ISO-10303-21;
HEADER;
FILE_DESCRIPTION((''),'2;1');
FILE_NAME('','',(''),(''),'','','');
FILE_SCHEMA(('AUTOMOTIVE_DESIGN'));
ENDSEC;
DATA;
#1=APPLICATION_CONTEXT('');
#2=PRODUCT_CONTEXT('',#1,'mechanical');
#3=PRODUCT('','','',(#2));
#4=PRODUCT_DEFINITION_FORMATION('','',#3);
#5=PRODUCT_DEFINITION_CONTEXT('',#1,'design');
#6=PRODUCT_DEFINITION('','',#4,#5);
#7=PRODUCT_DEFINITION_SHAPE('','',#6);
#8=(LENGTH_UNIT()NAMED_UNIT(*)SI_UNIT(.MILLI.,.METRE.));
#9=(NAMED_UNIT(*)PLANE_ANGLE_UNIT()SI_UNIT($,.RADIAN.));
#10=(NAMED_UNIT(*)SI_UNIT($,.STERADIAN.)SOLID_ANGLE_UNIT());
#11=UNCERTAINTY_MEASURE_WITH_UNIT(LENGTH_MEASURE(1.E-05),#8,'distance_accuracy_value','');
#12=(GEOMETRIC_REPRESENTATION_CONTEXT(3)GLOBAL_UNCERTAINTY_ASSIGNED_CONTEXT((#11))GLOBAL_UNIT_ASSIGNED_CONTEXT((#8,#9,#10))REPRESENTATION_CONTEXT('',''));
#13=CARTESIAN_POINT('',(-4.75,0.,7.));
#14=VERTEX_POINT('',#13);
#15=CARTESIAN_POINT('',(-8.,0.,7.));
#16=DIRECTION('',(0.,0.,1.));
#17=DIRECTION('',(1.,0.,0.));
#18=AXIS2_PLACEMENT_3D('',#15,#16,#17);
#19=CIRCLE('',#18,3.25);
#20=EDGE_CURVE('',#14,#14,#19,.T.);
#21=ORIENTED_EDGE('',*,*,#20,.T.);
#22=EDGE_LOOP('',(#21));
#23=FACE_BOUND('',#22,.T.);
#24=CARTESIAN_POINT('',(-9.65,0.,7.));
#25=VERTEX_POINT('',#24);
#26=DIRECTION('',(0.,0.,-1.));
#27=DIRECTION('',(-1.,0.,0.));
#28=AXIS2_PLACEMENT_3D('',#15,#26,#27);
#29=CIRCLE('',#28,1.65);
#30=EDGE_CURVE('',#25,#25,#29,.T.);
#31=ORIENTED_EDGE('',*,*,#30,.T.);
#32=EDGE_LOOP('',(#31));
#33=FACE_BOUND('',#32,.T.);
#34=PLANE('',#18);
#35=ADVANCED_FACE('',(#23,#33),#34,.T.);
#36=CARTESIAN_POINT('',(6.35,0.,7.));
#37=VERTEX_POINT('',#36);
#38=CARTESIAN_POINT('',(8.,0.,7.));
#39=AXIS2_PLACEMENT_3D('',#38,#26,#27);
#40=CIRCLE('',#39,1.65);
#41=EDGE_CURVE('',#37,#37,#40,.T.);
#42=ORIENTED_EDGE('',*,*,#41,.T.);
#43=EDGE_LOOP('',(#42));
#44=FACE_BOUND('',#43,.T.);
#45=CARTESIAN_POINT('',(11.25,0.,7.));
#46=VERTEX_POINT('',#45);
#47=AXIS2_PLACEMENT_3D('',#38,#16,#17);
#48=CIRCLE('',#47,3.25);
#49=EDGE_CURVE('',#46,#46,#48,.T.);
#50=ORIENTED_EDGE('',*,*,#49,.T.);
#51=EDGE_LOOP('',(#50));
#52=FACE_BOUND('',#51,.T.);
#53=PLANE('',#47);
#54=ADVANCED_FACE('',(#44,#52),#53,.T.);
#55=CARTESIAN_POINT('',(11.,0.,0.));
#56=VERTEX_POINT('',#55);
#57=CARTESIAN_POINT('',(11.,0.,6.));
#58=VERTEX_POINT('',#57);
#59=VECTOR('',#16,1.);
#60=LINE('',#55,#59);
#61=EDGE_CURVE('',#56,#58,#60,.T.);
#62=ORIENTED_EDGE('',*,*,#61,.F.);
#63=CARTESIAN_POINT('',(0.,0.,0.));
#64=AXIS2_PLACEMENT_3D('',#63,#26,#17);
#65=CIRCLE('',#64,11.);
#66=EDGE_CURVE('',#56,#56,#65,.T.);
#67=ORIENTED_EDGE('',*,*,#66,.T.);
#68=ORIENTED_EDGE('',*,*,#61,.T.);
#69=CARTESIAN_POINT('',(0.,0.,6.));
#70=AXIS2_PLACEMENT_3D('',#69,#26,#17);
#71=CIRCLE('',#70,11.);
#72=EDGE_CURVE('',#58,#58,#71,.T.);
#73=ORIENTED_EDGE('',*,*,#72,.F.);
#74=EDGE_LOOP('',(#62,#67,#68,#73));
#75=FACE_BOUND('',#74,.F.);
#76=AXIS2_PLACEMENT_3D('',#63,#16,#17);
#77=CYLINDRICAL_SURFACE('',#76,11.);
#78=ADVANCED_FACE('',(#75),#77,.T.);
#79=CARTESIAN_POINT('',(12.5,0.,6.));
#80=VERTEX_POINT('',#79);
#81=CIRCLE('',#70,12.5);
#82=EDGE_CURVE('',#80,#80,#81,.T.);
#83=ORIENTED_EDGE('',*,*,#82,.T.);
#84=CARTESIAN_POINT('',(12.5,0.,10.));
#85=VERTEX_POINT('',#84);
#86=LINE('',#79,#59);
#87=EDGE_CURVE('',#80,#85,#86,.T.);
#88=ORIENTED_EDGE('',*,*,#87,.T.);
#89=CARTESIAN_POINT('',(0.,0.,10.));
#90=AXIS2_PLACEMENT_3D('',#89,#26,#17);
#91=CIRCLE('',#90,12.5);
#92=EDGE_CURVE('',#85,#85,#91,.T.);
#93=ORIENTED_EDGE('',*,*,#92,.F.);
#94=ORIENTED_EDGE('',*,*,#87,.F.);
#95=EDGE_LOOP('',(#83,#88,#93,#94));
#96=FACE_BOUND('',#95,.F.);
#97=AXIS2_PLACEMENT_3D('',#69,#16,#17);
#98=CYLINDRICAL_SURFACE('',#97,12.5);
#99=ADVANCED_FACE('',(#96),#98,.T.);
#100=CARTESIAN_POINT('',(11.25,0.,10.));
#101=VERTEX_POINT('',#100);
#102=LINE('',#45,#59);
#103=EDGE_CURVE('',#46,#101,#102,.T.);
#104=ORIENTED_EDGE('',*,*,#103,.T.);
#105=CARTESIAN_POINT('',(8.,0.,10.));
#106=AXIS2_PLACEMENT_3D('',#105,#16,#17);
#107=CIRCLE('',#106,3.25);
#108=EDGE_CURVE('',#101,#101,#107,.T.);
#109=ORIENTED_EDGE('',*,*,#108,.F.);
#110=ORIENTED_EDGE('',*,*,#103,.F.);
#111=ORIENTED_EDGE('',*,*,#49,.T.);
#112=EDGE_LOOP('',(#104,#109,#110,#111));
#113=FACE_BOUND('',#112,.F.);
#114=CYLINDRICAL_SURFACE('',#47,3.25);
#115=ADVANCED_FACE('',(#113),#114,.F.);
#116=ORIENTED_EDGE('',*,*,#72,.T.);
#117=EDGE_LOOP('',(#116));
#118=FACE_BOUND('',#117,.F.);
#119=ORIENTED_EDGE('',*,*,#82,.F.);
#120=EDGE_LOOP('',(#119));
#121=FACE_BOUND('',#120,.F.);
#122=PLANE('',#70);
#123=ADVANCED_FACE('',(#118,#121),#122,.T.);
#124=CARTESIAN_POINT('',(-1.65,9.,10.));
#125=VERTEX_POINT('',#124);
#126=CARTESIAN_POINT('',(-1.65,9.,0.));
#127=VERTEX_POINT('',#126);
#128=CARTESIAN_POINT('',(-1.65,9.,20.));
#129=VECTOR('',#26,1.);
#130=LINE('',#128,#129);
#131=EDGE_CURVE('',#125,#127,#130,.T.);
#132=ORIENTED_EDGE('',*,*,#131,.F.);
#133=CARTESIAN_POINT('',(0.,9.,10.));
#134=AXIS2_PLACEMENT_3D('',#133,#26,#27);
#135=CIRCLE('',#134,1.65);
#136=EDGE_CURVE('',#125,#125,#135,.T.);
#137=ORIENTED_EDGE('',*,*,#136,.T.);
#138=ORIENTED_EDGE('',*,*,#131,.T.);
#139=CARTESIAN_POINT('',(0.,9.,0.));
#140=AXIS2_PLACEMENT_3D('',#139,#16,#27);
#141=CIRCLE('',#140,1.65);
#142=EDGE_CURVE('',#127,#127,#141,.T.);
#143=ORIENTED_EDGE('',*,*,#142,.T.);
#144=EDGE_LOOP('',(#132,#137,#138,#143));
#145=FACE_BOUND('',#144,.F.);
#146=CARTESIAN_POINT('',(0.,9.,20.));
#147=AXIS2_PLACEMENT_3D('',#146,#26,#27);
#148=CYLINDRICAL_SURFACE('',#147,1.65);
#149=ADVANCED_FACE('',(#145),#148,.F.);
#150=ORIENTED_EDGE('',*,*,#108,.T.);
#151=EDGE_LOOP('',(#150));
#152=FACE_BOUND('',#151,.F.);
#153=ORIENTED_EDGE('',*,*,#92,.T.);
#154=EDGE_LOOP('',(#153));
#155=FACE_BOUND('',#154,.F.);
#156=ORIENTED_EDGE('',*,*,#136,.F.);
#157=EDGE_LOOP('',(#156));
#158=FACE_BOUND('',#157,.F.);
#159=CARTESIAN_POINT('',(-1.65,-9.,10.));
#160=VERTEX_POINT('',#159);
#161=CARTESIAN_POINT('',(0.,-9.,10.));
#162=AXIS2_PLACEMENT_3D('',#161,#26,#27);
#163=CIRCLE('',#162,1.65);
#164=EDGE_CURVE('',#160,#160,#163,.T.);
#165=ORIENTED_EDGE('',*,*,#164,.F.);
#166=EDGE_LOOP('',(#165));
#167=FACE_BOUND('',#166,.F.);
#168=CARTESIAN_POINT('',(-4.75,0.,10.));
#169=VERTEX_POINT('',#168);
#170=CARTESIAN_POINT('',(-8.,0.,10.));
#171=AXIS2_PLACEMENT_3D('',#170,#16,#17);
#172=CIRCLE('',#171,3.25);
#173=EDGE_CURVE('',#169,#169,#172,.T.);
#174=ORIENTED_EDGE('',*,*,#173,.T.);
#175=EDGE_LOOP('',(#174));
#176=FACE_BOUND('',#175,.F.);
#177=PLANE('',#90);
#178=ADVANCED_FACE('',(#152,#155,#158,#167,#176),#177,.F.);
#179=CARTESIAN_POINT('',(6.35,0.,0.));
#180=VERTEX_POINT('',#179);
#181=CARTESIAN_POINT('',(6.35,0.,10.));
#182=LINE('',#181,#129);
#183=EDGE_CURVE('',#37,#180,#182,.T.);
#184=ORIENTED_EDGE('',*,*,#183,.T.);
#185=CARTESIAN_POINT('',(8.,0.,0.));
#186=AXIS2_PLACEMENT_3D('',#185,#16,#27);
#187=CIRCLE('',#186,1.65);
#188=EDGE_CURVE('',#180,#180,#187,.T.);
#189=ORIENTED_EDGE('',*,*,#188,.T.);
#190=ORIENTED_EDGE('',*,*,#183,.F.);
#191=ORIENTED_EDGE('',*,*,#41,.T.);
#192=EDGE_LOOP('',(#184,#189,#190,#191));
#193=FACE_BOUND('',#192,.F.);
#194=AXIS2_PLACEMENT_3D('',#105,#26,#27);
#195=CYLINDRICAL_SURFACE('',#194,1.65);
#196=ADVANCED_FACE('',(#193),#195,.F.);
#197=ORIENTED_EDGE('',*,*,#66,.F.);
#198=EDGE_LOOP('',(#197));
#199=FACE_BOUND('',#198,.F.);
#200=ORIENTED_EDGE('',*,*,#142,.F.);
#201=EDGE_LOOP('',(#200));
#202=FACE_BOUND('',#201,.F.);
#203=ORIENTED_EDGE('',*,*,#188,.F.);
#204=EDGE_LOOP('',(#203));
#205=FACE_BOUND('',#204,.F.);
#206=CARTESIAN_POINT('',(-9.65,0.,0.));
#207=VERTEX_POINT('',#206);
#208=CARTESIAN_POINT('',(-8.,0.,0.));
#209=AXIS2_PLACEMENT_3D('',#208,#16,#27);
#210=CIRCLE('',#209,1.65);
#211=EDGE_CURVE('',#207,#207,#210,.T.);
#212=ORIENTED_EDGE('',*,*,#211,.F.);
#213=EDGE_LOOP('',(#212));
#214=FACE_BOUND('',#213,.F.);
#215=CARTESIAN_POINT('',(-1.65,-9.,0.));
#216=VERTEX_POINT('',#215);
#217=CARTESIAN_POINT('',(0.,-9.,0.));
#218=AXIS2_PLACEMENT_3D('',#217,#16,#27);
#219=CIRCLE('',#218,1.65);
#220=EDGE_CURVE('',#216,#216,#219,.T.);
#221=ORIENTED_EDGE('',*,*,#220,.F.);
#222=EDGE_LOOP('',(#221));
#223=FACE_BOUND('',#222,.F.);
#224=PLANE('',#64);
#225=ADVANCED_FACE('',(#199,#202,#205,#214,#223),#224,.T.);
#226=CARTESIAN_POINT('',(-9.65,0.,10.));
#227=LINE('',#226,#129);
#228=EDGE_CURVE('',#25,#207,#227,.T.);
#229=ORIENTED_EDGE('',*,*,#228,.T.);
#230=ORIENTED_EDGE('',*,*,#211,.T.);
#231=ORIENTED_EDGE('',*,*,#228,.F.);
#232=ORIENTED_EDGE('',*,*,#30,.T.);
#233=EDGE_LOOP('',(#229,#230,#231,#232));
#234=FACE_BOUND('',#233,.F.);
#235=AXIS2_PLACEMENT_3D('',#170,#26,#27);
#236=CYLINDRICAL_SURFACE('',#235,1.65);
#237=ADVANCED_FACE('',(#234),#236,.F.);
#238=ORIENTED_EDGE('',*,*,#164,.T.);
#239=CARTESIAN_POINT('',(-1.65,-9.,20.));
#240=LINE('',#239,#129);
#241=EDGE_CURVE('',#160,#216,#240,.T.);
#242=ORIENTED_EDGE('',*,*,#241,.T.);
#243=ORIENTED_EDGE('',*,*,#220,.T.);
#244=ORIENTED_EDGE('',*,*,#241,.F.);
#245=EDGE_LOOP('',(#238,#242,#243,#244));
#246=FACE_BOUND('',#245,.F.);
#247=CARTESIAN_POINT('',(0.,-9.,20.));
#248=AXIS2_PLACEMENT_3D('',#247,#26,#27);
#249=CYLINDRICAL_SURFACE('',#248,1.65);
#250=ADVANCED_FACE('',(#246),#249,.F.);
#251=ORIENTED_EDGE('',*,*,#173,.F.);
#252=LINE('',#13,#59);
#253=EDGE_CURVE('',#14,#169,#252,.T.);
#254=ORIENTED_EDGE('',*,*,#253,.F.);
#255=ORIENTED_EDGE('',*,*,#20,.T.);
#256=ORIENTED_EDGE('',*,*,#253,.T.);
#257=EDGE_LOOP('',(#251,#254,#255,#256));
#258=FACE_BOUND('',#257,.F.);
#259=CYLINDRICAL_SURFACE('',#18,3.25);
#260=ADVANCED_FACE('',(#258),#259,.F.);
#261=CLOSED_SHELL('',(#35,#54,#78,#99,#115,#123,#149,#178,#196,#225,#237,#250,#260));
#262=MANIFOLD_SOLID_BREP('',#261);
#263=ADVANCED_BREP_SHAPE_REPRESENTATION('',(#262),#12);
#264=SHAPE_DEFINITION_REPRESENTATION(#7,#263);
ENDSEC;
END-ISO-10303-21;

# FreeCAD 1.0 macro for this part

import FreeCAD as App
import Part
import Sketcher

V = App.Vector
Q = App.Units.Quantity


def add_polygon(sketch, points):
    """Adds a closed chain of lines whose ends are joined by coincident constraints."""
    first, n = sketch.GeometryCount, len(points)
    for a, b in zip(points, points[1:] + points[:1]):
        sketch.addGeometry(Part.LineSegment(App.Vector(*a, 0), App.Vector(*b, 0)), False)
    for i in range(n):
        sketch.addConstraint(Sketcher.Constraint("Coincident", first + i, 2, first + (i + 1) % n, 1))

doc = App.newDocument("Part")
body = doc.addObject("PartDesign::Body", "Body")

# Sketch on XZ plane
sketch1 = body.newObject("Sketcher::SketchObject", "Sketch")
sketch1.AttachmentSupport = (doc.getObject("XZ_Plane"), [""])
sketch1.MapMode = "FlatFace"
add_polygon(sketch1, [(0, 10), (0, 0), (11, 0), (11, 6), (12.5, 6), (12.5, 10)])  # lines 0-5
sketch1.addConstraint(Sketcher.Constraint("Vertical", 0))
sketch1.addConstraint(Sketcher.Constraint("Horizontal", 1))
sketch1.addConstraint(Sketcher.Constraint("Vertical", 2))
sketch1.addConstraint(Sketcher.Constraint("Horizontal", 3))
sketch1.addConstraint(Sketcher.Constraint("Vertical", 4))
sketch1.addConstraint(Sketcher.Constraint("Horizontal", 5))
sketch1.addConstraint(Sketcher.Constraint("Coincident", 0, 2, -1, 1))
sketch1.addConstraint(Sketcher.Constraint("DistanceX", 1, 1, 1, 2, Q("11 mm")))
sketch1.addConstraint(Sketcher.Constraint("DistanceY", 0, 2, 0, 1, Q("10 mm")))
sketch1.addConstraint(Sketcher.Constraint("DistanceY", 2, 1, 2, 2, Q("6 mm")))
sketch1.addConstraint(Sketcher.Constraint("DistanceX", 3, 1, 3, 2, Q("1.5 mm")))
revolution = body.newObject("PartDesign::Revolution", "Revolution")
revolution.Profile = sketch1
revolution.ReferenceAxis = (sketch1, ["V_Axis"])
revolution.Angle = 360

# Sketch on XY plane
sketch2 = body.newObject("Sketcher::SketchObject", "Sketch001")
sketch2.AttachmentSupport = (doc.getObject("XY_Plane"), [""])
sketch2.MapMode = "FlatFace"
sketch2.AttachmentOffset = App.Placement(V(0, 0, 10), App.Rotation())
sketch2.addGeometry(Part.Circle(V(0, 9, 0), V(0, 0, 1), 1.6), False)
sketch2.addGeometry(Part.Circle(V(0, -9, 0), V(0, 0, 1), 1.6), False)
sketch2.addConstraint(Sketcher.Constraint("Equal", 0, 1))
sketch2.addConstraint(Sketcher.Constraint("Symmetric", 0, 3, 1, 3, -1, 1))
sketch2.addConstraint(Sketcher.Constraint("PointOnObject", 0, 3, -2))
sketch2.addConstraint(Sketcher.Constraint("Diameter", 0, Q("3.3 mm")))
sketch2.addConstraint(Sketcher.Constraint("DistanceY", -1, 1, 0, 3, Q("9 mm")))
doc.recompute()
hole = body.newObject("PartDesign::Hole", "Hole")
hole.Profile = sketch2
hole.ThreadType = "None"
hole.Diameter = 3.3
hole.DepthType = "Dimension"
hole.Depth = 10
hole.DrillPoint = "Angled"
hole.DrillPointAngle = 118

# Sketch on XY plane
sketch3 = body.newObject("Sketcher::SketchObject", "Sketch002")
sketch3.AttachmentSupport = (doc.getObject("XY_Plane"), [""])
sketch3.MapMode = "FlatFace"
sketch3.AttachmentOffset = App.Placement(V(0, 0, 10), App.Rotation())
sketch3.addGeometry(Part.Circle(V(-8, 0, 0), V(0, 0, 1), 1.6), False)
sketch3.addGeometry(Part.Circle(V(8, 0, 0), V(0, 0, 1), 1.6), False)
sketch3.addConstraint(Sketcher.Constraint("Equal", 0, 1))
sketch3.addConstraint(Sketcher.Constraint("Symmetric", 0, 3, 1, 3, -1, 1))
sketch3.addConstraint(Sketcher.Constraint("PointOnObject", 0, 3, -1))
sketch3.addConstraint(Sketcher.Constraint("Diameter", 0, Q("3.3 mm")))
sketch3.addConstraint(Sketcher.Constraint("DistanceX", 0, 3, -1, 1, Q("8 mm")))
doc.recompute()
hole2 = body.newObject("PartDesign::Hole", "Hole001")
hole2.Profile = sketch3
hole2.ThreadType = "None"
hole2.Diameter = 3.3
hole2.DepthType = "Dimension"
hole2.Depth = 10
hole2.DrillPoint = "Angled"
hole2.DrillPointAngle = 118
hole2.HoleCutType = "Counterbore"
hole2.HoleCutDiameter = 6.5
hole2.HoleCutDepth = 3

doc.recompute()
